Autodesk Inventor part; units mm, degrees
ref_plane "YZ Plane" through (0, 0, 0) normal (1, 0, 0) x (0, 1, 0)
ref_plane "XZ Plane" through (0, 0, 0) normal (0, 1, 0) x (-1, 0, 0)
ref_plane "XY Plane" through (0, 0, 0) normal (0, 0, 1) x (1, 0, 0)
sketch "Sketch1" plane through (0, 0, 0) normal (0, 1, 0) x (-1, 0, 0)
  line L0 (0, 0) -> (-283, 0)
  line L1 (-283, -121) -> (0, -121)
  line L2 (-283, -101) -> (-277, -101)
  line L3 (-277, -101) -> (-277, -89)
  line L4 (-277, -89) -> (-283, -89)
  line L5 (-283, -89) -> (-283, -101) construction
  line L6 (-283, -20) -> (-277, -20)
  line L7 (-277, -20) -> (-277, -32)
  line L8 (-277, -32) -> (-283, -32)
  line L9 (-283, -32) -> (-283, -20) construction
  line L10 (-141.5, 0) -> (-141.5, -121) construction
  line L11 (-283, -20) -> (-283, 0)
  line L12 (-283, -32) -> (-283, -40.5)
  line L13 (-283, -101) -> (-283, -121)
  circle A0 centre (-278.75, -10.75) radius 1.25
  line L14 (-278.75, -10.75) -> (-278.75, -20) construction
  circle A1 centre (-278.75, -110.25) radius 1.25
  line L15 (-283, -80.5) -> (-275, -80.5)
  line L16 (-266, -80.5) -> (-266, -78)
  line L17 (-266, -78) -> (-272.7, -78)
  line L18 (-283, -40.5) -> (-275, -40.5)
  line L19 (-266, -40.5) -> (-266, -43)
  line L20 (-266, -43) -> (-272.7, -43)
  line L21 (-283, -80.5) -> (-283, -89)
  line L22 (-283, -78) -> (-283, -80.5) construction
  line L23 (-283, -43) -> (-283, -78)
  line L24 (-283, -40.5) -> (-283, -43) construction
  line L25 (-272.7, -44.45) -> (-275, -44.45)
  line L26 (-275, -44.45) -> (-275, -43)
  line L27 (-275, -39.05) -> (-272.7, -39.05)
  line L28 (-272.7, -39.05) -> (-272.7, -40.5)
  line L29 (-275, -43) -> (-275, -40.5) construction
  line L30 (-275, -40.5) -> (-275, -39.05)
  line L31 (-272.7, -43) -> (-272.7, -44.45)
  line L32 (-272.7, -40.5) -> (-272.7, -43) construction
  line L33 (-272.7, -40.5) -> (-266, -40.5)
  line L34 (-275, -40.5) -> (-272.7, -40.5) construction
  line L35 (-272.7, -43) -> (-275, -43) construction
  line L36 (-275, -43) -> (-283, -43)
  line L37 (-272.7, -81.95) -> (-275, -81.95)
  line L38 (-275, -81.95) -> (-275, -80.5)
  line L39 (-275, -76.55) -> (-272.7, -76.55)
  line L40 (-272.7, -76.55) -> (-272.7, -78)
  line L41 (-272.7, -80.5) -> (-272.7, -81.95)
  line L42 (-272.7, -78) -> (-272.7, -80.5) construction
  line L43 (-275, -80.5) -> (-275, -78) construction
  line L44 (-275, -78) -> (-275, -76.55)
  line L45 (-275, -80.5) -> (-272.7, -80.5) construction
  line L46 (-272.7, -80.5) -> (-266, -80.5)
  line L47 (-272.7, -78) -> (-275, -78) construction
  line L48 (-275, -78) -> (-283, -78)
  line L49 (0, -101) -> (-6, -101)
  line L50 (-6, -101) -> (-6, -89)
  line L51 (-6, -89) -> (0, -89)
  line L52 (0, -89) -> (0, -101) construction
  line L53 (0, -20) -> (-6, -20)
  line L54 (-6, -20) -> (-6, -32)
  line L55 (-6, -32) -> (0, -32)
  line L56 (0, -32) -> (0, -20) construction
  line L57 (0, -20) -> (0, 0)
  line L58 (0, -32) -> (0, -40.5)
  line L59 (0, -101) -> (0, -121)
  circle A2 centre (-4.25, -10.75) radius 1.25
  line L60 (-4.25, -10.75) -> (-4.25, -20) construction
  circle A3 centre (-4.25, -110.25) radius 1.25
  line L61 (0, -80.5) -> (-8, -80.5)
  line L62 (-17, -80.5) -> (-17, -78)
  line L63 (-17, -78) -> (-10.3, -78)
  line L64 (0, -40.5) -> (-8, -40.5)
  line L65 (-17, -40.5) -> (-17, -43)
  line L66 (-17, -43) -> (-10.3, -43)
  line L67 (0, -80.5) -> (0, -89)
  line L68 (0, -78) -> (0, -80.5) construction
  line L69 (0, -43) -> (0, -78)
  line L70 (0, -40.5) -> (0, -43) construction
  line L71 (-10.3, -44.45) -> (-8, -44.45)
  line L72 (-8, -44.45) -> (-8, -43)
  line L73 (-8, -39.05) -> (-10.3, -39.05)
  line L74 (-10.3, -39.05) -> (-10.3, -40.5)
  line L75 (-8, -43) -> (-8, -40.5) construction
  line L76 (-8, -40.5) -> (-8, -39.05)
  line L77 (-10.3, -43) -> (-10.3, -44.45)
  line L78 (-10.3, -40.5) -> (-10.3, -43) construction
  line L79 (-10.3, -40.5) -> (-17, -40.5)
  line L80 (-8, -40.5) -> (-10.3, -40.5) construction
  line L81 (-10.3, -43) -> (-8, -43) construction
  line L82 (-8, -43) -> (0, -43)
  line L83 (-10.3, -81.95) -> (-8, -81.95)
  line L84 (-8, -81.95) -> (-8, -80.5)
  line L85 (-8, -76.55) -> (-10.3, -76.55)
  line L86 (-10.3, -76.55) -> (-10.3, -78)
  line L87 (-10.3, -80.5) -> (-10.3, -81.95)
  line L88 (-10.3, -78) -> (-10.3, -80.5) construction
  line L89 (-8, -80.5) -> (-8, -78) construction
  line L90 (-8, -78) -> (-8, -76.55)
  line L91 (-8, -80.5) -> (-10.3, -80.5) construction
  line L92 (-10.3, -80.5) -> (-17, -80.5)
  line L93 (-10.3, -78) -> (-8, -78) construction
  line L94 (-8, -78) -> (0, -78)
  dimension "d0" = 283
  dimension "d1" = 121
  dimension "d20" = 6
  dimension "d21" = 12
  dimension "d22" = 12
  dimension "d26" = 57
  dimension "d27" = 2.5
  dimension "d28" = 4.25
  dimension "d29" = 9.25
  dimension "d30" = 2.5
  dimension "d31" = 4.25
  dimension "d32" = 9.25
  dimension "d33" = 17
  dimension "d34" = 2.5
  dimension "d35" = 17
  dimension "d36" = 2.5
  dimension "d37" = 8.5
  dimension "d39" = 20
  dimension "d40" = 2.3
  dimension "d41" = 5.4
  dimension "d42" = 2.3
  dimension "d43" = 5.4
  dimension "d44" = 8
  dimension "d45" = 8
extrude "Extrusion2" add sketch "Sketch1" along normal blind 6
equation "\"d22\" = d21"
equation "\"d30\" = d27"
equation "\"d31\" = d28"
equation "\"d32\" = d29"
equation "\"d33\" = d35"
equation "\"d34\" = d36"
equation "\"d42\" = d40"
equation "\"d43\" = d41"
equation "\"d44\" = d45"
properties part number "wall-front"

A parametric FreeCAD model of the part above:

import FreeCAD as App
import Part
import Sketcher

V = App.Vector
Q = App.Units.Quantity

doc = App.newDocument("Part")
body = doc.addObject("PartDesign::Body", "Body")

# Sketch on XZ plane
sketch1 = body.newObject("Sketcher::SketchObject", "Sketch")
sketch1.AttachmentSupport = (doc.getObject("XZ_Plane"), [""])
sketch1.MapMode = "FlatFace"
sketch1.addGeometry(Part.LineSegment(V(0, -20, 0), V(0, 0, 0)), False)
sketch1.addGeometry(Part.LineSegment(V(0, 0, 0), V(283, 0, 0)), False)
sketch1.addGeometry(Part.LineSegment(V(283, 0, 0), V(283, -20, 0)), False)
sketch1.addGeometry(Part.LineSegment(V(283, -20, 0), V(277, -20, 0)), False)
sketch1.addGeometry(Part.LineSegment(V(277, -20, 0), V(277, -32, 0)), False)
sketch1.addGeometry(Part.LineSegment(V(277, -32, 0), V(283, -32, 0)), False)
sketch1.addGeometry(Part.LineSegment(V(283, -32, 0), V(283, -40.5, 0)), False)
sketch1.addGeometry(Part.LineSegment(V(283, -40.5, 0), V(275, -40.5, 0)), False)
sketch1.addGeometry(Part.LineSegment(V(275, -40.5, 0), V(275, -39, 0)), False)
sketch1.addGeometry(Part.LineSegment(V(275, -39, 0), V(272.7, -39, 0)), False)
sketch1.addGeometry(Part.LineSegment(V(272.7, -39, 0), V(272.7, -40.5, 0)), False)
sketch1.addGeometry(Part.LineSegment(V(272.7, -40.5, 0), V(266, -40.5, 0)), False)
sketch1.addGeometry(Part.LineSegment(V(266, -40.5, 0), V(266, -43, 0)), False)
sketch1.addGeometry(Part.LineSegment(V(266, -43, 0), V(272.7, -43, 0)), False)
sketch1.addGeometry(Part.LineSegment(V(272.7, -43, 0), V(272.7, -44.5, 0)), False)
sketch1.addGeometry(Part.LineSegment(V(272.7, -44.5, 0), V(275, -44.5, 0)), False)
sketch1.addGeometry(Part.LineSegment(V(275, -44.5, 0), V(275, -43, 0)), False)
sketch1.addGeometry(Part.LineSegment(V(275, -43, 0), V(283, -43, 0)), False)
sketch1.addGeometry(Part.LineSegment(V(283, -43, 0), V(283, -78, 0)), False)
sketch1.addGeometry(Part.LineSegment(V(283, -78, 0), V(275, -78, 0)), False)
sketch1.addGeometry(Part.LineSegment(V(275, -78, 0), V(275, -76.5, 0)), False)
sketch1.addGeometry(Part.LineSegment(V(275, -76.5, 0), V(272.7, -76.5, 0)), False)
sketch1.addGeometry(Part.LineSegment(V(272.7, -76.5, 0), V(272.7, -78, 0)), False)
sketch1.addGeometry(Part.LineSegment(V(272.7, -78, 0), V(266, -78, 0)), False)
sketch1.addGeometry(Part.LineSegment(V(266, -78, 0), V(266, -80.5, 0)), False)
sketch1.addGeometry(Part.LineSegment(V(266, -80.5, 0), V(272.7, -80.5, 0)), False)
sketch1.addGeometry(Part.LineSegment(V(272.7, -80.5, 0), V(272.7, -82, 0)), False)
sketch1.addGeometry(Part.LineSegment(V(272.7, -82, 0), V(275, -82, 0)), False)
sketch1.addGeometry(Part.LineSegment(V(275, -82, 0), V(275, -80.5, 0)), False)
sketch1.addGeometry(Part.LineSegment(V(275, -80.5, 0), V(283, -80.5, 0)), False)
sketch1.addGeometry(Part.LineSegment(V(283, -80.5, 0), V(283, -89, 0)), False)
sketch1.addGeometry(Part.LineSegment(V(283, -89, 0), V(277, -89, 0)), False)
sketch1.addGeometry(Part.LineSegment(V(277, -89, 0), V(277, -101, 0)), False)
sketch1.addGeometry(Part.LineSegment(V(277, -101, 0), V(283, -101, 0)), False)
sketch1.addGeometry(Part.LineSegment(V(283, -101, 0), V(283, -121, 0)), False)
sketch1.addGeometry(Part.LineSegment(V(283, -121, 0), V(0, -121, 0)), False)
sketch1.addGeometry(Part.LineSegment(V(0, -121, 0), V(0, -101, 0)), False)
sketch1.addGeometry(Part.LineSegment(V(0, -101, 0), V(6, -101, 0)), False)
sketch1.addGeometry(Part.LineSegment(V(6, -101, 0), V(6, -89, 0)), False)
sketch1.addGeometry(Part.LineSegment(V(6, -89, 0), V(0, -89, 0)), False)
sketch1.addGeometry(Part.LineSegment(V(0, -89, 0), V(0, -80.5, 0)), False)
sketch1.addGeometry(Part.LineSegment(V(0, -80.5, 0), V(8, -80.5, 0)), False)
sketch1.addGeometry(Part.LineSegment(V(8, -80.5, 0), V(8, -82, 0)), False)
sketch1.addGeometry(Part.LineSegment(V(8, -82, 0), V(10.3, -82, 0)), False)
sketch1.addGeometry(Part.LineSegment(V(10.3, -82, 0), V(10.3, -80.5, 0)), False)
sketch1.addGeometry(Part.LineSegment(V(10.3, -80.5, 0), V(17, -80.5, 0)), False)
sketch1.addGeometry(Part.LineSegment(V(17, -80.5, 0), V(17, -78, 0)), False)
sketch1.addGeometry(Part.LineSegment(V(17, -78, 0), V(10.3, -78, 0)), False)
sketch1.addGeometry(Part.LineSegment(V(10.3, -78, 0), V(10.3, -76.5, 0)), False)
sketch1.addGeometry(Part.LineSegment(V(10.3, -76.5, 0), V(8, -76.5, 0)), False)
sketch1.addGeometry(Part.LineSegment(V(8, -76.5, 0), V(8, -78, 0)), False)
sketch1.addGeometry(Part.LineSegment(V(8, -78, 0), V(0, -78, 0)), False)
sketch1.addGeometry(Part.LineSegment(V(0, -78, 0), V(0, -43, 0)), False)
sketch1.addGeometry(Part.LineSegment(V(0, -43, 0), V(8, -43, 0)), False)
sketch1.addGeometry(Part.LineSegment(V(8, -43, 0), V(8, -44.5, 0)), False)
sketch1.addGeometry(Part.LineSegment(V(8, -44.5, 0), V(10.3, -44.5, 0)), False)
sketch1.addGeometry(Part.LineSegment(V(10.3, -44.5, 0), V(10.3, -43, 0)), False)
sketch1.addGeometry(Part.LineSegment(V(10.3, -43, 0), V(17, -43, 0)), False)
sketch1.addGeometry(Part.LineSegment(V(17, -43, 0), V(17, -40.5, 0)), False)
sketch1.addGeometry(Part.LineSegment(V(17, -40.5, 0), V(10.3, -40.5, 0)), False)
sketch1.addGeometry(Part.LineSegment(V(10.3, -40.5, 0), V(10.3, -39, 0)), False)
sketch1.addGeometry(Part.LineSegment(V(10.3, -39, 0), V(8, -39, 0)), False)
sketch1.addGeometry(Part.LineSegment(V(8, -39, 0), V(8, -40.5, 0)), False)
sketch1.addGeometry(Part.LineSegment(V(8, -40.5, 0), V(0, -40.5, 0)), False)
sketch1.addGeometry(Part.LineSegment(V(0, -40.5, 0), V(0, -32, 0)), False)
sketch1.addGeometry(Part.LineSegment(V(0, -32, 0), V(6, -32, 0)), False)
sketch1.addGeometry(Part.LineSegment(V(6, -32, 0), V(6, -20, 0)), False)
sketch1.addGeometry(Part.LineSegment(V(6, -20, 0), V(0, -20, 0)), False)
sketch1.addGeometry(Part.Circle(V(278.8, -110.2, 0), V(0, 0, 1), 1.2), False)
sketch1.addGeometry(Part.Circle(V(4.2, -110.2, 0), V(0, 0, 1), 1.2), False)
sketch1.addGeometry(Part.Circle(V(278.8, -10.8, 0), V(0, 0, 1), 1.2), False)
sketch1.addGeometry(Part.Circle(V(4.2, -10.8, 0), V(0, 0, 1), 1.2), False)
sketch1.addConstraint(Sketcher.Constraint("Coincident", 0, 2, 1, 1))
sketch1.addConstraint(Sketcher.Constraint("Coincident", 1, 2, 2, 1))
sketch1.addConstraint(Sketcher.Constraint("Coincident", 2, 2, 3, 1))
sketch1.addConstraint(Sketcher.Constraint("Coincident", 3, 2, 4, 1))
sketch1.addConstraint(Sketcher.Constraint("Coincident", 4, 2, 5, 1))
sketch1.addConstraint(Sketcher.Constraint("Coincident", 5, 2, 6, 1))
sketch1.addConstraint(Sketcher.Constraint("Coincident", 6, 2, 7, 1))
sketch1.addConstraint(Sketcher.Constraint("Coincident", 7, 2, 8, 1))
sketch1.addConstraint(Sketcher.Constraint("Coincident", 8, 2, 9, 1))
sketch1.addConstraint(Sketcher.Constraint("Coincident", 9, 2, 10, 1))
sketch1.addConstraint(Sketcher.Constraint("Coincident", 10, 2, 11, 1))
sketch1.addConstraint(Sketcher.Constraint("Coincident", 11, 2, 12, 1))
sketch1.addConstraint(Sketcher.Constraint("Coincident", 12, 2, 13, 1))
sketch1.addConstraint(Sketcher.Constraint("Coincident", 13, 2, 14, 1))
sketch1.addConstraint(Sketcher.Constraint("Coincident", 14, 2, 15, 1))
sketch1.addConstraint(Sketcher.Constraint("Coincident", 15, 2, 16, 1))
sketch1.addConstraint(Sketcher.Constraint("Coincident", 16, 2, 17, 1))
sketch1.addConstraint(Sketcher.Constraint("Coincident", 17, 2, 18, 1))
sketch1.addConstraint(Sketcher.Constraint("Coincident", 18, 2, 19, 1))
sketch1.addConstraint(Sketcher.Constraint("Coincident", 19, 2, 20, 1))
sketch1.addConstraint(Sketcher.Constraint("Coincident", 20, 2, 21, 1))
sketch1.addConstraint(Sketcher.Constraint("Coincident", 21, 2, 22, 1))
sketch1.addConstraint(Sketcher.Constraint("Coincident", 22, 2, 23, 1))
sketch1.addConstraint(Sketcher.Constraint("Coincident", 23, 2, 24, 1))
sketch1.addConstraint(Sketcher.Constraint("Coincident", 24, 2, 25, 1))
sketch1.addConstraint(Sketcher.Constraint("Coincident", 25, 2, 26, 1))
sketch1.addConstraint(Sketcher.Constraint("Coincident", 26, 2, 27, 1))
sketch1.addConstraint(Sketcher.Constraint("Coincident", 27, 2, 28, 1))
sketch1.addConstraint(Sketcher.Constraint("Coincident", 28, 2, 29, 1))
sketch1.addConstraint(Sketcher.Constraint("Coincident", 29, 2, 30, 1))
sketch1.addConstraint(Sketcher.Constraint("Coincident", 30, 2, 31, 1))
sketch1.addConstraint(Sketcher.Constraint("Coincident", 31, 2, 32, 1))
sketch1.addConstraint(Sketcher.Constraint("Coincident", 32, 2, 33, 1))
sketch1.addConstraint(Sketcher.Constraint("Coincident", 33, 2, 34, 1))
sketch1.addConstraint(Sketcher.Constraint("Coincident", 34, 2, 35, 1))
sketch1.addConstraint(Sketcher.Constraint("Coincident", 35, 2, 36, 1))
sketch1.addConstraint(Sketcher.Constraint("Coincident", 36, 2, 37, 1))
sketch1.addConstraint(Sketcher.Constraint("Coincident", 37, 2, 38, 1))
sketch1.addConstraint(Sketcher.Constraint("Coincident", 38, 2, 39, 1))
sketch1.addConstraint(Sketcher.Constraint("Coincident", 39, 2, 40, 1))
sketch1.addConstraint(Sketcher.Constraint("Coincident", 40, 2, 41, 1))
sketch1.addConstraint(Sketcher.Constraint("Coincident", 41, 2, 42, 1))
sketch1.addConstraint(Sketcher.Constraint("Coincident", 42, 2, 43, 1))
sketch1.addConstraint(Sketcher.Constraint("Coincident", 43, 2, 44, 1))
sketch1.addConstraint(Sketcher.Constraint("Coincident", 44, 2, 45, 1))
sketch1.addConstraint(Sketcher.Constraint("Coincident", 45, 2, 46, 1))
sketch1.addConstraint(Sketcher.Constraint("Coincident", 46, 2, 47, 1))
sketch1.addConstraint(Sketcher.Constraint("Coincident", 47, 2, 48, 1))
sketch1.addConstraint(Sketcher.Constraint("Coincident", 48, 2, 49, 1))
sketch1.addConstraint(Sketcher.Constraint("Coincident", 49, 2, 50, 1))
sketch1.addConstraint(Sketcher.Constraint("Coincident", 50, 2, 51, 1))
sketch1.addConstraint(Sketcher.Constraint("Coincident", 51, 2, 52, 1))
sketch1.addConstraint(Sketcher.Constraint("Coincident", 52, 2, 53, 1))
sketch1.addConstraint(Sketcher.Constraint("Coincident", 53, 2, 54, 1))
sketch1.addConstraint(Sketcher.Constraint("Coincident", 54, 2, 55, 1))
sketch1.addConstraint(Sketcher.Constraint("Coincident", 55, 2, 56, 1))
sketch1.addConstraint(Sketcher.Constraint("Coincident", 56, 2, 57, 1))
sketch1.addConstraint(Sketcher.Constraint("Coincident", 57, 2, 58, 1))
sketch1.addConstraint(Sketcher.Constraint("Coincident", 58, 2, 59, 1))
sketch1.addConstraint(Sketcher.Constraint("Coincident", 59, 2, 60, 1))
sketch1.addConstraint(Sketcher.Constraint("Coincident", 60, 2, 61, 1))
sketch1.addConstraint(Sketcher.Constraint("Coincident", 61, 2, 62, 1))
sketch1.addConstraint(Sketcher.Constraint("Coincident", 62, 2, 63, 1))
sketch1.addConstraint(Sketcher.Constraint("Coincident", 63, 2, 64, 1))
sketch1.addConstraint(Sketcher.Constraint("Coincident", 64, 2, 65, 1))
sketch1.addConstraint(Sketcher.Constraint("Coincident", 65, 2, 66, 1))
sketch1.addConstraint(Sketcher.Constraint("Coincident", 66, 2, 67, 1))
sketch1.addConstraint(Sketcher.Constraint("Coincident", 67, 2, 0, 1))
sketch1.addConstraint(Sketcher.Constraint("Vertical", 0))
sketch1.addConstraint(Sketcher.Constraint("Horizontal", 1))
sketch1.addConstraint(Sketcher.Constraint("Vertical", 2))
sketch1.addConstraint(Sketcher.Constraint("Horizontal", 3))
sketch1.addConstraint(Sketcher.Constraint("Vertical", 4))
sketch1.addConstraint(Sketcher.Constraint("Horizontal", 5))
sketch1.addConstraint(Sketcher.Constraint("Vertical", 6))
sketch1.addConstraint(Sketcher.Constraint("Horizontal", 7))
sketch1.addConstraint(Sketcher.Constraint("Vertical", 8))
sketch1.addConstraint(Sketcher.Constraint("Horizontal", 9))
sketch1.addConstraint(Sketcher.Constraint("Vertical", 10))
sketch1.addConstraint(Sketcher.Constraint("Horizontal", 11))
sketch1.addConstraint(Sketcher.Constraint("Vertical", 12))
sketch1.addConstraint(Sketcher.Constraint("Horizontal", 13))
sketch1.addConstraint(Sketcher.Constraint("Vertical", 14))
sketch1.addConstraint(Sketcher.Constraint("Horizontal", 15))
sketch1.addConstraint(Sketcher.Constraint("Vertical", 16))
sketch1.addConstraint(Sketcher.Constraint("Horizontal", 17))
sketch1.addConstraint(Sketcher.Constraint("Vertical", 18))
sketch1.addConstraint(Sketcher.Constraint("Horizontal", 19))
sketch1.addConstraint(Sketcher.Constraint("Vertical", 20))
sketch1.addConstraint(Sketcher.Constraint("Horizontal", 21))
sketch1.addConstraint(Sketcher.Constraint("Vertical", 22))
sketch1.addConstraint(Sketcher.Constraint("Horizontal", 23))
sketch1.addConstraint(Sketcher.Constraint("Vertical", 24))
sketch1.addConstraint(Sketcher.Constraint("Horizontal", 25))
sketch1.addConstraint(Sketcher.Constraint("Vertical", 26))
sketch1.addConstraint(Sketcher.Constraint("Horizontal", 27))
sketch1.addConstraint(Sketcher.Constraint("Vertical", 28))
sketch1.addConstraint(Sketcher.Constraint("Horizontal", 29))
sketch1.addConstraint(Sketcher.Constraint("Vertical", 30))
sketch1.addConstraint(Sketcher.Constraint("Horizontal", 31))
sketch1.addConstraint(Sketcher.Constraint("Vertical", 32))
sketch1.addConstraint(Sketcher.Constraint("Horizontal", 33))
sketch1.addConstraint(Sketcher.Constraint("Vertical", 34))
sketch1.addConstraint(Sketcher.Constraint("Horizontal", 35))
sketch1.addConstraint(Sketcher.Constraint("Vertical", 36))
sketch1.addConstraint(Sketcher.Constraint("Horizontal", 37))
sketch1.addConstraint(Sketcher.Constraint("Vertical", 38))
sketch1.addConstraint(Sketcher.Constraint("Horizontal", 39))
sketch1.addConstraint(Sketcher.Constraint("Vertical", 40))
sketch1.addConstraint(Sketcher.Constraint("Horizontal", 41))
sketch1.addConstraint(Sketcher.Constraint("Vertical", 42))
sketch1.addConstraint(Sketcher.Constraint("Horizontal", 43))
sketch1.addConstraint(Sketcher.Constraint("Vertical", 44))
sketch1.addConstraint(Sketcher.Constraint("Horizontal", 45))
sketch1.addConstraint(Sketcher.Constraint("Vertical", 46))
sketch1.addConstraint(Sketcher.Constraint("Horizontal", 47))
sketch1.addConstraint(Sketcher.Constraint("Vertical", 48))
sketch1.addConstraint(Sketcher.Constraint("Horizontal", 49))
sketch1.addConstraint(Sketcher.Constraint("Vertical", 50))
sketch1.addConstraint(Sketcher.Constraint("Horizontal", 51))
sketch1.addConstraint(Sketcher.Constraint("Vertical", 52))
sketch1.addConstraint(Sketcher.Constraint("Horizontal", 53))
sketch1.addConstraint(Sketcher.Constraint("Vertical", 54))
sketch1.addConstraint(Sketcher.Constraint("Horizontal", 55))
sketch1.addConstraint(Sketcher.Constraint("Vertical", 56))
sketch1.addConstraint(Sketcher.Constraint("Horizontal", 57))
sketch1.addConstraint(Sketcher.Constraint("Vertical", 58))
sketch1.addConstraint(Sketcher.Constraint("Horizontal", 59))
sketch1.addConstraint(Sketcher.Constraint("Vertical", 60))
sketch1.addConstraint(Sketcher.Constraint("Horizontal", 61))
sketch1.addConstraint(Sketcher.Constraint("Vertical", 62))
sketch1.addConstraint(Sketcher.Constraint("Horizontal", 63))
sketch1.addConstraint(Sketcher.Constraint("Vertical", 64))
sketch1.addConstraint(Sketcher.Constraint("Horizontal", 65))
sketch1.addConstraint(Sketcher.Constraint("Vertical", 66))
sketch1.addConstraint(Sketcher.Constraint("Horizontal", 67))
sketch1.addConstraint(Sketcher.Constraint("Coincident", 0, 2, -1, 1))
sketch1.addConstraint(Sketcher.Constraint("Equal", 68, 69))
sketch1.addConstraint(Sketcher.Constraint("Equal", 69, 70))
sketch1.addConstraint(Sketcher.Constraint("Equal", 70, 71))
sketch1.addConstraint(Sketcher.Constraint("PointOnObject", 35, 2, -2))
sketch1.addConstraint(Sketcher.Constraint("PointOnObject", 39, 2, -2))
sketch1.addConstraint(Sketcher.Constraint("PointOnObject", 51, 2, -2))
sketch1.addConstraint(Sketcher.Constraint("PointOnObject", 63, 2, -2))
sketch1.addConstraint(Sketcher.Constraint("Horizontal", 68, 3, 69, 3))
sketch1.addConstraint(Sketcher.Constraint("Horizontal", 70, 3, 71, 3))
sketch1.addConstraint(Sketcher.Constraint("Horizontal", 7, 2, 10, 2))
sketch1.addConstraint(Sketcher.Constraint("Horizontal", 13, 2, 16, 2))
sketch1.addConstraint(Sketcher.Constraint("Horizontal", 19, 2, 22, 2))
sketch1.addConstraint(Sketcher.Constraint("Horizontal", 25, 2, 28, 2))
sketch1.addConstraint(Sketcher.Constraint("Horizontal", 33, 2, 36, 2))
sketch1.addConstraint(Sketcher.Constraint("Horizontal", 31, 2, 38, 2))
sketch1.addConstraint(Sketcher.Constraint("Horizontal", 29, 2, 40, 2))
sketch1.addConstraint(Sketcher.Constraint("Horizontal", 27, 2, 42, 2))
sketch1.addConstraint(Sketcher.Constraint("Horizontal", 41, 2, 44, 2))
sketch1.addConstraint(Sketcher.Constraint("Horizontal", 23, 2, 46, 2))
sketch1.addConstraint(Sketcher.Constraint("Horizontal", 21, 2, 48, 2))
sketch1.addConstraint(Sketcher.Constraint("Horizontal", 47, 2, 50, 2))
sketch1.addConstraint(Sketcher.Constraint("Horizontal", 17, 2, 52, 2))
sketch1.addConstraint(Sketcher.Constraint("Horizontal", 15, 2, 54, 2))
sketch1.addConstraint(Sketcher.Constraint("Horizontal", 53, 2, 56, 2))
sketch1.addConstraint(Sketcher.Constraint("Horizontal", 11, 2, 58, 2))
sketch1.addConstraint(Sketcher.Constraint("Horizontal", 9, 2, 60, 2))
sketch1.addConstraint(Sketcher.Constraint("Horizontal", 59, 2, 62, 2))
sketch1.addConstraint(Sketcher.Constraint("Horizontal", 5, 2, 64, 2))
sketch1.addConstraint(Sketcher.Constraint("Horizontal", 3, 2, 66, 2))
sketch1.addConstraint(Sketcher.Constraint("Vertical", 68, 3, 70, 3))
sketch1.addConstraint(Sketcher.Constraint("Vertical", 69, 3, 71, 3))
sketch1.addConstraint(Sketcher.Constraint("Vertical", 2, 2, 5, 2))
sketch1.addConstraint(Sketcher.Constraint("Vertical", 10, 2, 13, 2))
sketch1.addConstraint(Sketcher.Constraint("Vertical", 8, 2, 15, 2))
sketch1.addConstraint(Sketcher.Constraint("Vertical", 6, 2, 17, 2))
sketch1.addConstraint(Sketcher.Constraint("Vertical", 16, 2, 19, 2))
sketch1.addConstraint(Sketcher.Constraint("Vertical", 14, 2, 21, 2))
sketch1.addConstraint(Sketcher.Constraint("Vertical", 12, 2, 23, 2))
sketch1.addConstraint(Sketcher.Constraint("Vertical", 22, 2, 25, 2))
sketch1.addConstraint(Sketcher.Constraint("Vertical", 20, 2, 27, 2))
sketch1.addConstraint(Sketcher.Constraint("Vertical", 18, 2, 29, 2))
sketch1.addConstraint(Sketcher.Constraint("Vertical", 4, 2, 31, 2))
sketch1.addConstraint(Sketcher.Constraint("Vertical", 30, 2, 33, 2))
sketch1.addConstraint(Sketcher.Constraint("Vertical", 44, 2, 47, 2))
sketch1.addConstraint(Sketcher.Constraint("Vertical", 42, 2, 49, 2))
sketch1.addConstraint(Sketcher.Constraint("Vertical", 50, 2, 53, 2))
sketch1.addConstraint(Sketcher.Constraint("Vertical", 48, 2, 55, 2))
sketch1.addConstraint(Sketcher.Constraint("Vertical", 46, 2, 57, 2))
sketch1.addConstraint(Sketcher.Constraint("Vertical", 56, 2, 59, 2))
sketch1.addConstraint(Sketcher.Constraint("Vertical", 54, 2, 61, 2))
sketch1.addConstraint(Sketcher.Constraint("Vertical", 38, 2, 65, 2))
sketch1.addConstraint(Sketcher.Constraint("Equal", 33, 37))
sketch1.addConstraint(Sketcher.Constraint("Equal", 29, 41))
sketch1.addConstraint(Sketcher.Constraint("Equal", 27, 43))
sketch1.addConstraint(Sketcher.Constraint("Equal", 25, 45))
sketch1.addConstraint(Sketcher.Constraint("Equal", 10, 14))
sketch1.addConstraint(Sketcher.Constraint("Equal", 16, 20))
sketch1.addConstraint(Sketcher.Constraint("Equal", 12, 24))
sketch1.addConstraint(Sketcher.Constraint("Equal", 22, 26))
sketch1.addConstraint(Sketcher.Constraint("Equal", 6, 30))
sketch1.addConstraint(Sketcher.Constraint("Equal", 4, 32))
sketch1.addConstraint(Sketcher.Constraint("Equal", 2, 34))
sketch1.addConstraint(Sketcher.Constraint("Diameter", 68, Q("2.5 mm")))
sketch1.addConstraint(Sketcher.Constraint("DistanceX", 1, 1, 1, 2, Q("283 mm")))
sketch1.addConstraint(Sketcher.Constraint("DistanceX", 3, 2, 3, 1, Q("6 mm")))
sketch1.addConstraint(Sketcher.Constraint("DistanceX", 7, 2, 7, 1, Q("8 mm")))
sketch1.addConstraint(Sketcher.Constraint("DistanceY", 0, 1, 0, 2, Q("20 mm")))
sketch1.addConstraint(Sketcher.Constraint("DistanceY", 4, 2, 4, 1, Q("12 mm")))
sketch1.addConstraint(Sketcher.Constraint("DistanceX", 9, 2, 9, 1, Q("2.3 mm")))
sketch1.addConstraint(Sketcher.Constraint("DistanceY", 6, 2, 6, 1, Q("8.5 mm")))
sketch1.addConstraint(Sketcher.Constraint("DistanceY", 12, 2, 12, 1, Q("2.5 mm")))
sketch1.addConstraint(Sketcher.Constraint("DistanceY", 34, 2, -1, 1, Q("121 mm")))
sketch1.addConstraint(Sketcher.Constraint("DistanceX", -1, 1, 45, 2, Q("17 mm")))
sketch1.addConstraint(Sketcher.Constraint("DistanceX", -1, 1, 69, 3, Q("4.25 mm")))
sketch1.addConstraint(Sketcher.Constraint("DistanceY", 8, 1, 8, 2, Q("1.45 mm")))
sketch1.addConstraint(Sketcher.Constraint("DistanceX", -1, 1, 68, 3, Q("278.75 mm")))
sketch1.addConstraint(Sketcher.Constraint("DistanceY", 68, 3, -1, 1, Q("110.25 mm")))
sketch1.addConstraint(Sketcher.Constraint("DistanceY", 70, 3, -1, 1, Q("10.75 mm")))
pad1 = body.newObject("PartDesign::Pad", "Pad")
pad1.Profile = sketch1
pad1.Length = 6
pad1.Reversed = True

doc.recompute()
